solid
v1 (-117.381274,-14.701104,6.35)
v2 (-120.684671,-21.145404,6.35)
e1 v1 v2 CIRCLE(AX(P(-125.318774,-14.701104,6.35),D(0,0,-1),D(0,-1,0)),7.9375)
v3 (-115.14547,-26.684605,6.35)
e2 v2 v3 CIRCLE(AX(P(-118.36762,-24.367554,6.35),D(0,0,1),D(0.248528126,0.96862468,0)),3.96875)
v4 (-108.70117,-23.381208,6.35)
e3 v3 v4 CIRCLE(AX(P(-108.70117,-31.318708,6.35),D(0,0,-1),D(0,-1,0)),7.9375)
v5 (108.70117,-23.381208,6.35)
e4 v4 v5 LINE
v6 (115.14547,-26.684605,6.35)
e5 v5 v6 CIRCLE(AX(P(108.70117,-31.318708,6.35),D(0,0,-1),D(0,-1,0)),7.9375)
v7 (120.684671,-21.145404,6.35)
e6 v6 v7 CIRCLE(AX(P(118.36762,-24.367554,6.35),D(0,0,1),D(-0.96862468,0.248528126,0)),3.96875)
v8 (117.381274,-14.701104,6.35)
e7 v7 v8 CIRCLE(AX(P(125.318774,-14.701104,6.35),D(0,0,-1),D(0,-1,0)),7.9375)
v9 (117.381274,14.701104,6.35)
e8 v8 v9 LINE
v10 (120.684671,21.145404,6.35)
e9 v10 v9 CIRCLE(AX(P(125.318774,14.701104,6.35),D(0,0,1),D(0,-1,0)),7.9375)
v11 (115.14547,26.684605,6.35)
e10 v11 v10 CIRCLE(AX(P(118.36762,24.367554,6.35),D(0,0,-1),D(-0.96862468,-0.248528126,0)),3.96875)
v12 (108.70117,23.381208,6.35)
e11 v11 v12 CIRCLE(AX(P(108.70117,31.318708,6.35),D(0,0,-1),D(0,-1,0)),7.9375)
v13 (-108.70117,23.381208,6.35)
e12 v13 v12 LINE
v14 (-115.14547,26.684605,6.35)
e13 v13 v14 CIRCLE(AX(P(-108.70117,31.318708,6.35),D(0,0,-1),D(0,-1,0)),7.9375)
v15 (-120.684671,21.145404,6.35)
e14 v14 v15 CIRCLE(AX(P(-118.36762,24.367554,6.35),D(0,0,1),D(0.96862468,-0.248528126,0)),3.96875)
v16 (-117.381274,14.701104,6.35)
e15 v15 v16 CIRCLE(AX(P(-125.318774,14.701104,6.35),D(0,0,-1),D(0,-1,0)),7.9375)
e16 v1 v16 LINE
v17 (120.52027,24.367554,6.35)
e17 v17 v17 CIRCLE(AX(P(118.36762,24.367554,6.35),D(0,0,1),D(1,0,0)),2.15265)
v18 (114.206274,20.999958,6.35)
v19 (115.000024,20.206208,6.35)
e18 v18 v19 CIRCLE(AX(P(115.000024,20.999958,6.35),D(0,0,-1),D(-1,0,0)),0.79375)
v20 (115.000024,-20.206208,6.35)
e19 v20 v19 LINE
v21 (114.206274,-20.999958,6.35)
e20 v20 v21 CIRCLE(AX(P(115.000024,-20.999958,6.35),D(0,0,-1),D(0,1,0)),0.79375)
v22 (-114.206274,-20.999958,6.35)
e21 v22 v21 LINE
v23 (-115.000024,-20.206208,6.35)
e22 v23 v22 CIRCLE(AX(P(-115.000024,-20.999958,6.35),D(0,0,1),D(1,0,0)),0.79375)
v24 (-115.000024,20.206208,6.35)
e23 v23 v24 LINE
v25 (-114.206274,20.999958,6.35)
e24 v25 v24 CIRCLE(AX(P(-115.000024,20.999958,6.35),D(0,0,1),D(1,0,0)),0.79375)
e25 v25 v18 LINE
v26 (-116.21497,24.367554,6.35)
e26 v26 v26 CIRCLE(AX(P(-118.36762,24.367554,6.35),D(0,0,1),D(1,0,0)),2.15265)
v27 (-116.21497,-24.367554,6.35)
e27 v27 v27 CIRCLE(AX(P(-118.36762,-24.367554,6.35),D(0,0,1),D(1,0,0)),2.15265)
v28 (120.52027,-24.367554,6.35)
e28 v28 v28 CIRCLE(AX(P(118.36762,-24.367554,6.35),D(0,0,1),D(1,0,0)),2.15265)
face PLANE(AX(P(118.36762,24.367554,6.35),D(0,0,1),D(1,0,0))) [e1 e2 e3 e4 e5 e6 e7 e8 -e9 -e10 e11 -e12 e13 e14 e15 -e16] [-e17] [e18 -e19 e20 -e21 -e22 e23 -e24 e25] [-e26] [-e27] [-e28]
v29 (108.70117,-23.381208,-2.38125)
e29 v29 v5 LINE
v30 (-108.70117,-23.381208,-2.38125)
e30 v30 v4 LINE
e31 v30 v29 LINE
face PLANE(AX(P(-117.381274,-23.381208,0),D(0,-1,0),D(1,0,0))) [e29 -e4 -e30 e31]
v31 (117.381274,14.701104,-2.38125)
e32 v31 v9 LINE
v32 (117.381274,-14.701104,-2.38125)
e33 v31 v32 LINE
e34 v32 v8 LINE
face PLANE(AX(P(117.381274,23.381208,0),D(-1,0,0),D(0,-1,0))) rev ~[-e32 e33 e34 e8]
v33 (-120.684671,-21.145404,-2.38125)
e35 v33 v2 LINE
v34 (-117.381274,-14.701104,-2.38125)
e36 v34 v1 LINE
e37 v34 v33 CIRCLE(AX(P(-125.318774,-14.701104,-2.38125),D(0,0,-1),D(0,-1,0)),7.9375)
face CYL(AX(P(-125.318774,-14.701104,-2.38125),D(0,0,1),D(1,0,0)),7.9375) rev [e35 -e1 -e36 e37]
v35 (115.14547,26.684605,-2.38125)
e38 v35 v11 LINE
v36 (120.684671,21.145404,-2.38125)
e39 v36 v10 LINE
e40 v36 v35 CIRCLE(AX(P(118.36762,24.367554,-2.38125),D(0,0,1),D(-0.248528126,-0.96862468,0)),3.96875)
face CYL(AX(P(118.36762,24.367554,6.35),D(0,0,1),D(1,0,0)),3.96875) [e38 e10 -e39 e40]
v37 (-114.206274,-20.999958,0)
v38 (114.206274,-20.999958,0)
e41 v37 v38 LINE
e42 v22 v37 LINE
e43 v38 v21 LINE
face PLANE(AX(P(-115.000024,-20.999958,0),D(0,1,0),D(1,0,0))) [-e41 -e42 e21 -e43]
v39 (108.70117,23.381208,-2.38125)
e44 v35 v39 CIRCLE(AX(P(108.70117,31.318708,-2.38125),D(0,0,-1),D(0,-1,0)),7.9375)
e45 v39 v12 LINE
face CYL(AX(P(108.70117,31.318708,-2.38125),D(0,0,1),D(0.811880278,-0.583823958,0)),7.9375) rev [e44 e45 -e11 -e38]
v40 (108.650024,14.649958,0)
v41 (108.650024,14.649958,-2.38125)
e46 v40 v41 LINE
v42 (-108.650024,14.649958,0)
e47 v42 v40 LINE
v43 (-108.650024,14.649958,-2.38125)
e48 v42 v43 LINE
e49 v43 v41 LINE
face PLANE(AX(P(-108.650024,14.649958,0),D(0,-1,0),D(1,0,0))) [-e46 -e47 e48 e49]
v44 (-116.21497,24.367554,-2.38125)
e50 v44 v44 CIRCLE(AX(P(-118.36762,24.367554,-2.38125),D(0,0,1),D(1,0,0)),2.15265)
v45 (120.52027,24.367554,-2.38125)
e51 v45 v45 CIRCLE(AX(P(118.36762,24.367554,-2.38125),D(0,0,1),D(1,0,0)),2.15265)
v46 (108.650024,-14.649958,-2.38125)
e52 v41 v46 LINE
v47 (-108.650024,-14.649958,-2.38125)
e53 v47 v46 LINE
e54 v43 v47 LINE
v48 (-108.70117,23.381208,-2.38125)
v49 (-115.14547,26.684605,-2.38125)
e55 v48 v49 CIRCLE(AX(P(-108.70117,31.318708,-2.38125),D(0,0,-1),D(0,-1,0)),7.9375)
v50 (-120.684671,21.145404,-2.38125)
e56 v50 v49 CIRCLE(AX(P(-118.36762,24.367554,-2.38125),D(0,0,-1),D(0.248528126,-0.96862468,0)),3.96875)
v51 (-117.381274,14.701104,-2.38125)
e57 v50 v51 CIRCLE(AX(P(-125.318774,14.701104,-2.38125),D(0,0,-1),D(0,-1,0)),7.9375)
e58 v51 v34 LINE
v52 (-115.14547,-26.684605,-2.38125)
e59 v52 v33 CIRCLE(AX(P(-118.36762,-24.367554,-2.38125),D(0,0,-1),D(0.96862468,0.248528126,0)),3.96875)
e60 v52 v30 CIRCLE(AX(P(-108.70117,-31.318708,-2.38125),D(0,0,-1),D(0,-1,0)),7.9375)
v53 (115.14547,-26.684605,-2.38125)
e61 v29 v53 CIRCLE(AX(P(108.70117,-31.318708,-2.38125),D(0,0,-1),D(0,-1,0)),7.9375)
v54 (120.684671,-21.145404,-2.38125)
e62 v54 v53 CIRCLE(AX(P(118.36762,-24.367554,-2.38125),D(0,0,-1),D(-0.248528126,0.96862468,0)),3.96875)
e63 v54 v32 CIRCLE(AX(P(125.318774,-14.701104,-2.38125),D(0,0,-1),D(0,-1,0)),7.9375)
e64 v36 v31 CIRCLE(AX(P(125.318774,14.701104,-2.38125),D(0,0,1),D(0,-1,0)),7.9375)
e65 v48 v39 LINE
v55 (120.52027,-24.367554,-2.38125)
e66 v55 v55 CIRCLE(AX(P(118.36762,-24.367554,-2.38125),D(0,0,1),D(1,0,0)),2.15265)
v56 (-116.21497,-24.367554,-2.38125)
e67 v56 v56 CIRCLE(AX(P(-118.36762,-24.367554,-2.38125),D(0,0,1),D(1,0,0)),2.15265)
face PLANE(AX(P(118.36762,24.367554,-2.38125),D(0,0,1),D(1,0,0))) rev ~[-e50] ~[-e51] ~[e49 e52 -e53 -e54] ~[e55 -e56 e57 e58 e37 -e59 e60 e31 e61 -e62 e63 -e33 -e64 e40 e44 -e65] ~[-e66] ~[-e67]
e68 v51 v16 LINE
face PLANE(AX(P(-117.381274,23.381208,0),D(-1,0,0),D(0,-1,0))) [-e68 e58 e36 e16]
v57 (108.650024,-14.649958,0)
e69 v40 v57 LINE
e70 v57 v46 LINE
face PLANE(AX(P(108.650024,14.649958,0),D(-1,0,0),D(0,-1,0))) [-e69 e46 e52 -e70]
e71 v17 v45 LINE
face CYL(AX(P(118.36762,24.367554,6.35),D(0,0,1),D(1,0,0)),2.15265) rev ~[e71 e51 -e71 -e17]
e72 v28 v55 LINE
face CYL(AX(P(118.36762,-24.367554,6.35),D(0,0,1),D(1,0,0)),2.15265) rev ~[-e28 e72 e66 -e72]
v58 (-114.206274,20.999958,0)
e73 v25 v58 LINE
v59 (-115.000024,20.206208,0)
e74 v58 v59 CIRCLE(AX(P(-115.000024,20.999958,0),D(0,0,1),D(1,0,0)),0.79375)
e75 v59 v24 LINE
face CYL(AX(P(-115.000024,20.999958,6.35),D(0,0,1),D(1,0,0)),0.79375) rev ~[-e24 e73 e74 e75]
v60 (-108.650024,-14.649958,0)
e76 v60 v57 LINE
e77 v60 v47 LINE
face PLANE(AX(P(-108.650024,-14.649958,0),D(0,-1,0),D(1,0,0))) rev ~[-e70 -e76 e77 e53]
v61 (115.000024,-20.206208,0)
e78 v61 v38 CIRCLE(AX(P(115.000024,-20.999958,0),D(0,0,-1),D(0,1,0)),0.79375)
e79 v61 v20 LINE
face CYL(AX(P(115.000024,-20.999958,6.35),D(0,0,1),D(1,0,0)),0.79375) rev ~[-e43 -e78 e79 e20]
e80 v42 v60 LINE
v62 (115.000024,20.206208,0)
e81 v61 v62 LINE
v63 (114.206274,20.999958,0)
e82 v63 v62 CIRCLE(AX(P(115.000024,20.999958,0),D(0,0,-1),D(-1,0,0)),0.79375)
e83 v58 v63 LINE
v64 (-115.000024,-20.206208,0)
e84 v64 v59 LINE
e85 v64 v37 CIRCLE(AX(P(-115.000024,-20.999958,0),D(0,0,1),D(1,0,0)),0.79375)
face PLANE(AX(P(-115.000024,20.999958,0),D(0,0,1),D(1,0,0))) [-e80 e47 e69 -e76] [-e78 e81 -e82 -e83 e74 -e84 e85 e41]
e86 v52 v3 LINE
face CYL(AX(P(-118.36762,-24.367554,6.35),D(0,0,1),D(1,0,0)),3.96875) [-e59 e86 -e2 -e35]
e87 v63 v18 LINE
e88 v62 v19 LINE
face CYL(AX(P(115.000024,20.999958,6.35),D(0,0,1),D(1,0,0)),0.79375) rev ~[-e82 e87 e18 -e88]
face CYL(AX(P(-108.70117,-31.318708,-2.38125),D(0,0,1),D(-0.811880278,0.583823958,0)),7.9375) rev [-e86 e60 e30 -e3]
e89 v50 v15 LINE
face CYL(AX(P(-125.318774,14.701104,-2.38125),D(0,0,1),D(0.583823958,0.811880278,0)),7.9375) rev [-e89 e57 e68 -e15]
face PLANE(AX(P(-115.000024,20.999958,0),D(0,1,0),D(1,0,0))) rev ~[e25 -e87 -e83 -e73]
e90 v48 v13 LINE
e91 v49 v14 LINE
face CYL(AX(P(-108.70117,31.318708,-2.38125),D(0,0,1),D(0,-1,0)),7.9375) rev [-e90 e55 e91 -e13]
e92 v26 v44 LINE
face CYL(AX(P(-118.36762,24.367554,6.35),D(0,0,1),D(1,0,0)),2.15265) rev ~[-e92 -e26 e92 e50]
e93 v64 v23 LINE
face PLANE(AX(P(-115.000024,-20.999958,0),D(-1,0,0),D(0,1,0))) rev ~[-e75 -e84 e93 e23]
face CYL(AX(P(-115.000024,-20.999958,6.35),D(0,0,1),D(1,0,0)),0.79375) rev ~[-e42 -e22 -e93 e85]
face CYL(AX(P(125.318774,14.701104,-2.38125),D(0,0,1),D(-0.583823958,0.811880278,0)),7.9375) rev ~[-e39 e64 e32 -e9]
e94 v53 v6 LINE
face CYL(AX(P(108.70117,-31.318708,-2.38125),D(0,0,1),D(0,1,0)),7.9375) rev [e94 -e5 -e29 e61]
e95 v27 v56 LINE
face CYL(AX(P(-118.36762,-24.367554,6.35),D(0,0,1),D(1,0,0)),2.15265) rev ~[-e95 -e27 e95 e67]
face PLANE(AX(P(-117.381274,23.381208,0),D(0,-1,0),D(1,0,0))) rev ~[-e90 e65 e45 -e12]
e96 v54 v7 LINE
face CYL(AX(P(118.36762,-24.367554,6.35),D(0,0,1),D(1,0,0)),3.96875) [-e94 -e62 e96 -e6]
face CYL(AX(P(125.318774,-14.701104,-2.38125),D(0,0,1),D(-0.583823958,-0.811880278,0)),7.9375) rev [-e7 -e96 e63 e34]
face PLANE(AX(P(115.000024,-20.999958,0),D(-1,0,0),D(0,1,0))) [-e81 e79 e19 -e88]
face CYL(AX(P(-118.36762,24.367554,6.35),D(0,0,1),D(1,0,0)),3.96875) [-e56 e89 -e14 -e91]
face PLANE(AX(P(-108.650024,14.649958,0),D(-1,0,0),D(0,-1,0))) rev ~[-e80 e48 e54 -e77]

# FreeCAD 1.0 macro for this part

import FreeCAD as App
import Part
import Sketcher
Q = App.Units.Quantity


def edges_at(feature, points):
    """Names of the edges that pass closest to the given points."""
    edges = feature.Shape.Edges
    near = lambda p: min(range(len(edges)), key=lambda i: edges[i].distToShape(Part.Vertex(*p))[0])
    return sorted({f"Edge{near(p) + 1}" for p in points})


def add_polygon(sketch, points):
    """Adds a closed chain of lines whose ends are joined by coincident constraints."""
    first, n = sketch.GeometryCount, len(points)
    for a, b in zip(points, points[1:] + points[:1]):
        sketch.addGeometry(Part.LineSegment(App.Vector(*a, 0), App.Vector(*b, 0)), False)
    for i in range(n):
        sketch.addConstraint(Sketcher.Constraint("Coincident", first + i, 2, first + (i + 1) % n, 1))

doc = App.newDocument("Part")
params = doc.addObject("Spreadsheet::Sheet", "Params")
for row, (alias, value) in enumerate([
    ("pad1_length", "0.25 in"),
    ("pad2_length", "0.09375 in"),
    ("sketch3_diameter", "0.3125 in"),
    ("pad3_length", "0.34375 in"),
    ("fillet_radius", "0.3125 in"),
    ("sketch5_diameter", "0.0625 in"),
    ("pocket2_length", "0.25 in"),
], start=1):
    params.set(f"A{row}", alias)
    params.set(f"B{row}", "=" + value)
    params.setAlias(f"B{row}", alias)

body = doc.addObject("PartDesign::Body", "Body")

sketch1 = doc.addObject("Sketcher::SketchObject", "Sketch")
body.addObject(sketch1)
sketch1.AttachmentSupport = (doc.XY_Plane, [""])
sketch1.MapMode = "FlatFace"
add_polygon(sketch1, [(-117, 23), (-117, -23), (117, -23), (117, 23)])
add_polygon(sketch1, [(115, -21), (-115, -21), (-115, 21), (115, 21)])
sketch1.addConstraint(Sketcher.Constraint("Vertical", 0))
sketch1.addConstraint(Sketcher.Constraint("Horizontal", 1))
sketch1.addConstraint(Sketcher.Constraint("Vertical", 2))
sketch1.addConstraint(Sketcher.Constraint("Horizontal", 3))
sketch1.addConstraint(Sketcher.Constraint("Horizontal", 4))
sketch1.addConstraint(Sketcher.Constraint("Vertical", 5))
sketch1.addConstraint(Sketcher.Constraint("Horizontal", 6))
sketch1.addConstraint(Sketcher.Constraint("Vertical", 7))
sketch1.addConstraint(Sketcher.Constraint("Symmetric", 0, 2, 2, 2, -1, 1))
sketch1.addConstraint(Sketcher.Constraint("Symmetric", 4, 2, 6, 2, -1, 1))
sketch1.addConstraint(Sketcher.Constraint("DistanceX", 0, 2, 4, 2, Q("0.09375 in")))
sketch1.addConstraint(Sketcher.Constraint("DistanceY", 0, 2, 4, 2, Q("0.09375 in")))
sketch1.addConstraint(Sketcher.Constraint("DistanceX", 1, 1, 1, 2, 234.762548))
sketch1.addConstraint(Sketcher.Constraint("DistanceY", 0, 2, 0, 1, 46.762416))
pad1 = doc.addObject("PartDesign::Pad", "Pad")
body.addObject(pad1)
pad1.Profile = sketch1
pad1.setExpression("Length", "Params.pad1_length")

sketch2 = doc.addObject("Sketcher::SketchObject", "Sketch001")
body.addObject(sketch2)
sketch2.AttachmentSupport = (doc.XY_Plane, [""])
sketch2.MapMode = "FlatFace"
add_polygon(sketch2, [(-117, -23), (-117, 23), (117, 23), (117, -23)])
add_polygon(sketch2, [(109, 15), (-109, 15), (-109, -15), (109, -15)])
sketch2.addConstraint(Sketcher.Constraint("Vertical", 0))
sketch2.addConstraint(Sketcher.Constraint("Horizontal", 1))
sketch2.addConstraint(Sketcher.Constraint("Vertical", 2))
sketch2.addConstraint(Sketcher.Constraint("Horizontal", 3))
sketch2.addConstraint(Sketcher.Constraint("Horizontal", 4))
sketch2.addConstraint(Sketcher.Constraint("Vertical", 5))
sketch2.addConstraint(Sketcher.Constraint("Horizontal", 6))
sketch2.addConstraint(Sketcher.Constraint("Vertical", 7))
sketch2.addConstraint(Sketcher.Constraint("Symmetric", 0, 2, 2, 2, -1, 1))
sketch2.addConstraint(Sketcher.Constraint("Symmetric", 4, 2, 6, 2, -1, 1))
sketch2.addConstraint(Sketcher.Constraint("DistanceX", 0, 2, 4, 2, Q("0.34375 in")))
sketch2.addConstraint(Sketcher.Constraint("DistanceY", 4, 2, 0, 2, Q("0.34375 in")))
sketch2.addConstraint(Sketcher.Constraint("DistanceX", 1, 1, 1, 2, 234.762548))
sketch2.addConstraint(Sketcher.Constraint("DistanceY", 0, 1, 0, 2, 46.762416))
pad2 = doc.addObject("PartDesign::Pad", "Pad001")
body.addObject(pad2)
pad2.Profile = sketch2
pad2.setExpression("Length", "Params.pad2_length")
pad2.Reversed = True

sketch3 = doc.addObject("Sketcher::SketchObject", "Sketch002")
body.addObject(sketch3)
sketch3.AttachmentSupport = (doc.XY_Plane, [""])
sketch3.MapMode = "FlatFace"
sketch3.AttachmentOffset = App.Placement(App.Vector(0, 0, 0.25 * 25.4), App.Rotation())
sketch3.addGeometry(Part.Circle(App.Vector(118.4, 24.4, 0), App.Vector(0, 0, 1), 4), False)
sketch3.addGeometry(Part.Circle(App.Vector(118.4, -24.4, 0), App.Vector(0, 0, 1), 4), False)
sketch3.addGeometry(Part.Circle(App.Vector(-118.4, -24.4, 0), App.Vector(0, 0, 1), 4), False)
sketch3.addGeometry(Part.Circle(App.Vector(-118.4, 24.4, 0), App.Vector(0, 0, 1), 4), False)
sketch3.addConstraint(Sketcher.Constraint("Equal", 0, 1))
sketch3.addConstraint(Sketcher.Constraint("Equal", 1, 2))
sketch3.addConstraint(Sketcher.Constraint("Equal", 2, 3))
sketch3.addConstraint(Sketcher.Constraint("Symmetric", 0, 3, 2, 3, -1, 1))
sketch3.addConstraint(Sketcher.Constraint("Symmetric", 1, 3, 3, 3, -1, 1))
sketch3.addConstraint(Sketcher.Constraint("Symmetric", 1, 3, 2, 3, -2))
sketch3.addConstraint(Sketcher.Constraint("Diameter", 0, Q("0.3125 in")))
sketch3.addConstraint(Sketcher.Constraint("DistanceX", -1, 1, 0, 3, 118.36762))
sketch3.addConstraint(Sketcher.Constraint("DistanceY", -1, 1, 0, 3, 24.367554))
sketch3.setExpression("Constraints[6]", "Params.sketch3_diameter")
pad3 = doc.addObject("PartDesign::Pad", "Pad002")
body.addObject(pad3)
pad3.Profile = sketch3
pad3.setExpression("Length", "Params.pad3_length")
pad3.Reversed = True
doc.recompute()

fillet = doc.addObject("PartDesign::Fillet", "Fillet")
body.addObject(fillet)
fillet.Base = (pad3, edges_at(pad3, [
    (114.523, 23.381, 1.984),
    (117.381, 20.523, 1.984),
    (117.381, -20.523, 1.984),
    (114.523, -23.381, 1.984),
    (-117.381, -20.523, 1.984),
    (-114.523, -23.381, 1.984),
    (-114.523, 23.381, 1.984),
    (-117.381, 20.523, 1.984),
]))
fillet.setExpression("Radius", "Params.fillet_radius")

sketch4 = doc.addObject("Sketcher::SketchObject", "Sketch003")
body.addObject(sketch4)
sketch4.AttachmentSupport = (doc.XY_Plane, [""])
sketch4.MapMode = "FlatFace"
sketch4.AttachmentOffset = App.Placement(App.Vector(0, 0, 0.25 * 25.4), App.Rotation())
sketch4.addGeometry(Part.Circle(App.Vector(118.4, 24.4, 0), App.Vector(0, 0, 1), 2.2), False)
sketch4.addGeometry(Part.Circle(App.Vector(118.4, -24.4, 0), App.Vector(0, 0, 1), 2.2), False)
sketch4.addGeometry(Part.Circle(App.Vector(-118.4, 24.4, 0), App.Vector(0, 0, 1), 2.2), False)
sketch4.addGeometry(Part.Circle(App.Vector(-118.4, -24.4, 0), App.Vector(0, 0, 1), 2.2), False)
sketch4.addConstraint(Sketcher.Constraint("Equal", 0, 1))
sketch4.addConstraint(Sketcher.Constraint("Equal", 1, 2))
sketch4.addConstraint(Sketcher.Constraint("Equal", 2, 3))
sketch4.addConstraint(Sketcher.Constraint("Symmetric", 1, 3, 2, 3, -1, 1))
sketch4.addConstraint(Sketcher.Constraint("Symmetric", 0, 3, 3, 3, -1, 1))
sketch4.addConstraint(Sketcher.Constraint("Symmetric", 0, 3, 2, 3, -2))
sketch4.addConstraint(Sketcher.Constraint("Diameter", 0, Q("0.1695 in")))
sketch4.addConstraint(Sketcher.Constraint("DistanceX", -1, 1, 0, 3, 118.36762))
sketch4.addConstraint(Sketcher.Constraint("DistanceY", -1, 1, 0, 3, 24.367554))
pocket1 = doc.addObject("PartDesign::Pocket", "Pocket")
body.addObject(pocket1)
pocket1.Profile = sketch4
pocket1.Type = "ThroughAll"

sketch5 = doc.addObject("Sketcher::SketchObject", "Sketch004")
body.addObject(sketch5)
sketch5.AttachmentSupport = (doc.XY_Plane, [""])
sketch5.MapMode = "FlatFace"
sketch5.AttachmentOffset = App.Placement(App.Vector(0, 0, 0.25 * 25.4), App.Rotation())
sketch5.addGeometry(Part.Circle(App.Vector(-115.000024, 20.999958, 0), App.Vector(0, 0, 1), 0.79375), False)
sketch5.addGeometry(Part.Circle(App.Vector(-115.000024, -20.999958, 0), App.Vector(0, 0, 1), 0.79375), False)
sketch5.addGeometry(Part.Circle(App.Vector(115.000024, 20.999958, 0), App.Vector(0, 0, 1), 0.79375), False)
sketch5.addGeometry(Part.Circle(App.Vector(115.000024, -20.999958, 0), App.Vector(0, 0, 1), 0.79375), False)
sketch5.addConstraint(Sketcher.Constraint("Equal", 0, 1))
sketch5.addConstraint(Sketcher.Constraint("Equal", 1, 2))
sketch5.addConstraint(Sketcher.Constraint("Equal", 2, 3))
sketch5.addConstraint(Sketcher.Constraint("Symmetric", 1, 3, 2, 3, -1, 1))
sketch5.addConstraint(Sketcher.Constraint("Symmetric", 0, 3, 3, 3, -1, 1))
sketch5.addConstraint(Sketcher.Constraint("Symmetric", 0, 3, 2, 3, -2))
sketch5.addConstraint(Sketcher.Constraint("Diameter", 0, Q("0.0625 in")))
sketch5.addConstraint(Sketcher.Constraint("DistanceX", 0, 3, 2, 3, 230.000048))
sketch5.addConstraint(Sketcher.Constraint("DistanceY", -1, 1, 0, 3, 20.999958))
sketch5.setExpression("Constraints[6]", "Params.sketch5_diameter")
pocket2 = doc.addObject("PartDesign::Pocket", "Pocket001")
body.addObject(pocket2)
pocket2.Profile = sketch5
pocket2.setExpression("Length", "Params.pocket2_length")

doc.recompute()
